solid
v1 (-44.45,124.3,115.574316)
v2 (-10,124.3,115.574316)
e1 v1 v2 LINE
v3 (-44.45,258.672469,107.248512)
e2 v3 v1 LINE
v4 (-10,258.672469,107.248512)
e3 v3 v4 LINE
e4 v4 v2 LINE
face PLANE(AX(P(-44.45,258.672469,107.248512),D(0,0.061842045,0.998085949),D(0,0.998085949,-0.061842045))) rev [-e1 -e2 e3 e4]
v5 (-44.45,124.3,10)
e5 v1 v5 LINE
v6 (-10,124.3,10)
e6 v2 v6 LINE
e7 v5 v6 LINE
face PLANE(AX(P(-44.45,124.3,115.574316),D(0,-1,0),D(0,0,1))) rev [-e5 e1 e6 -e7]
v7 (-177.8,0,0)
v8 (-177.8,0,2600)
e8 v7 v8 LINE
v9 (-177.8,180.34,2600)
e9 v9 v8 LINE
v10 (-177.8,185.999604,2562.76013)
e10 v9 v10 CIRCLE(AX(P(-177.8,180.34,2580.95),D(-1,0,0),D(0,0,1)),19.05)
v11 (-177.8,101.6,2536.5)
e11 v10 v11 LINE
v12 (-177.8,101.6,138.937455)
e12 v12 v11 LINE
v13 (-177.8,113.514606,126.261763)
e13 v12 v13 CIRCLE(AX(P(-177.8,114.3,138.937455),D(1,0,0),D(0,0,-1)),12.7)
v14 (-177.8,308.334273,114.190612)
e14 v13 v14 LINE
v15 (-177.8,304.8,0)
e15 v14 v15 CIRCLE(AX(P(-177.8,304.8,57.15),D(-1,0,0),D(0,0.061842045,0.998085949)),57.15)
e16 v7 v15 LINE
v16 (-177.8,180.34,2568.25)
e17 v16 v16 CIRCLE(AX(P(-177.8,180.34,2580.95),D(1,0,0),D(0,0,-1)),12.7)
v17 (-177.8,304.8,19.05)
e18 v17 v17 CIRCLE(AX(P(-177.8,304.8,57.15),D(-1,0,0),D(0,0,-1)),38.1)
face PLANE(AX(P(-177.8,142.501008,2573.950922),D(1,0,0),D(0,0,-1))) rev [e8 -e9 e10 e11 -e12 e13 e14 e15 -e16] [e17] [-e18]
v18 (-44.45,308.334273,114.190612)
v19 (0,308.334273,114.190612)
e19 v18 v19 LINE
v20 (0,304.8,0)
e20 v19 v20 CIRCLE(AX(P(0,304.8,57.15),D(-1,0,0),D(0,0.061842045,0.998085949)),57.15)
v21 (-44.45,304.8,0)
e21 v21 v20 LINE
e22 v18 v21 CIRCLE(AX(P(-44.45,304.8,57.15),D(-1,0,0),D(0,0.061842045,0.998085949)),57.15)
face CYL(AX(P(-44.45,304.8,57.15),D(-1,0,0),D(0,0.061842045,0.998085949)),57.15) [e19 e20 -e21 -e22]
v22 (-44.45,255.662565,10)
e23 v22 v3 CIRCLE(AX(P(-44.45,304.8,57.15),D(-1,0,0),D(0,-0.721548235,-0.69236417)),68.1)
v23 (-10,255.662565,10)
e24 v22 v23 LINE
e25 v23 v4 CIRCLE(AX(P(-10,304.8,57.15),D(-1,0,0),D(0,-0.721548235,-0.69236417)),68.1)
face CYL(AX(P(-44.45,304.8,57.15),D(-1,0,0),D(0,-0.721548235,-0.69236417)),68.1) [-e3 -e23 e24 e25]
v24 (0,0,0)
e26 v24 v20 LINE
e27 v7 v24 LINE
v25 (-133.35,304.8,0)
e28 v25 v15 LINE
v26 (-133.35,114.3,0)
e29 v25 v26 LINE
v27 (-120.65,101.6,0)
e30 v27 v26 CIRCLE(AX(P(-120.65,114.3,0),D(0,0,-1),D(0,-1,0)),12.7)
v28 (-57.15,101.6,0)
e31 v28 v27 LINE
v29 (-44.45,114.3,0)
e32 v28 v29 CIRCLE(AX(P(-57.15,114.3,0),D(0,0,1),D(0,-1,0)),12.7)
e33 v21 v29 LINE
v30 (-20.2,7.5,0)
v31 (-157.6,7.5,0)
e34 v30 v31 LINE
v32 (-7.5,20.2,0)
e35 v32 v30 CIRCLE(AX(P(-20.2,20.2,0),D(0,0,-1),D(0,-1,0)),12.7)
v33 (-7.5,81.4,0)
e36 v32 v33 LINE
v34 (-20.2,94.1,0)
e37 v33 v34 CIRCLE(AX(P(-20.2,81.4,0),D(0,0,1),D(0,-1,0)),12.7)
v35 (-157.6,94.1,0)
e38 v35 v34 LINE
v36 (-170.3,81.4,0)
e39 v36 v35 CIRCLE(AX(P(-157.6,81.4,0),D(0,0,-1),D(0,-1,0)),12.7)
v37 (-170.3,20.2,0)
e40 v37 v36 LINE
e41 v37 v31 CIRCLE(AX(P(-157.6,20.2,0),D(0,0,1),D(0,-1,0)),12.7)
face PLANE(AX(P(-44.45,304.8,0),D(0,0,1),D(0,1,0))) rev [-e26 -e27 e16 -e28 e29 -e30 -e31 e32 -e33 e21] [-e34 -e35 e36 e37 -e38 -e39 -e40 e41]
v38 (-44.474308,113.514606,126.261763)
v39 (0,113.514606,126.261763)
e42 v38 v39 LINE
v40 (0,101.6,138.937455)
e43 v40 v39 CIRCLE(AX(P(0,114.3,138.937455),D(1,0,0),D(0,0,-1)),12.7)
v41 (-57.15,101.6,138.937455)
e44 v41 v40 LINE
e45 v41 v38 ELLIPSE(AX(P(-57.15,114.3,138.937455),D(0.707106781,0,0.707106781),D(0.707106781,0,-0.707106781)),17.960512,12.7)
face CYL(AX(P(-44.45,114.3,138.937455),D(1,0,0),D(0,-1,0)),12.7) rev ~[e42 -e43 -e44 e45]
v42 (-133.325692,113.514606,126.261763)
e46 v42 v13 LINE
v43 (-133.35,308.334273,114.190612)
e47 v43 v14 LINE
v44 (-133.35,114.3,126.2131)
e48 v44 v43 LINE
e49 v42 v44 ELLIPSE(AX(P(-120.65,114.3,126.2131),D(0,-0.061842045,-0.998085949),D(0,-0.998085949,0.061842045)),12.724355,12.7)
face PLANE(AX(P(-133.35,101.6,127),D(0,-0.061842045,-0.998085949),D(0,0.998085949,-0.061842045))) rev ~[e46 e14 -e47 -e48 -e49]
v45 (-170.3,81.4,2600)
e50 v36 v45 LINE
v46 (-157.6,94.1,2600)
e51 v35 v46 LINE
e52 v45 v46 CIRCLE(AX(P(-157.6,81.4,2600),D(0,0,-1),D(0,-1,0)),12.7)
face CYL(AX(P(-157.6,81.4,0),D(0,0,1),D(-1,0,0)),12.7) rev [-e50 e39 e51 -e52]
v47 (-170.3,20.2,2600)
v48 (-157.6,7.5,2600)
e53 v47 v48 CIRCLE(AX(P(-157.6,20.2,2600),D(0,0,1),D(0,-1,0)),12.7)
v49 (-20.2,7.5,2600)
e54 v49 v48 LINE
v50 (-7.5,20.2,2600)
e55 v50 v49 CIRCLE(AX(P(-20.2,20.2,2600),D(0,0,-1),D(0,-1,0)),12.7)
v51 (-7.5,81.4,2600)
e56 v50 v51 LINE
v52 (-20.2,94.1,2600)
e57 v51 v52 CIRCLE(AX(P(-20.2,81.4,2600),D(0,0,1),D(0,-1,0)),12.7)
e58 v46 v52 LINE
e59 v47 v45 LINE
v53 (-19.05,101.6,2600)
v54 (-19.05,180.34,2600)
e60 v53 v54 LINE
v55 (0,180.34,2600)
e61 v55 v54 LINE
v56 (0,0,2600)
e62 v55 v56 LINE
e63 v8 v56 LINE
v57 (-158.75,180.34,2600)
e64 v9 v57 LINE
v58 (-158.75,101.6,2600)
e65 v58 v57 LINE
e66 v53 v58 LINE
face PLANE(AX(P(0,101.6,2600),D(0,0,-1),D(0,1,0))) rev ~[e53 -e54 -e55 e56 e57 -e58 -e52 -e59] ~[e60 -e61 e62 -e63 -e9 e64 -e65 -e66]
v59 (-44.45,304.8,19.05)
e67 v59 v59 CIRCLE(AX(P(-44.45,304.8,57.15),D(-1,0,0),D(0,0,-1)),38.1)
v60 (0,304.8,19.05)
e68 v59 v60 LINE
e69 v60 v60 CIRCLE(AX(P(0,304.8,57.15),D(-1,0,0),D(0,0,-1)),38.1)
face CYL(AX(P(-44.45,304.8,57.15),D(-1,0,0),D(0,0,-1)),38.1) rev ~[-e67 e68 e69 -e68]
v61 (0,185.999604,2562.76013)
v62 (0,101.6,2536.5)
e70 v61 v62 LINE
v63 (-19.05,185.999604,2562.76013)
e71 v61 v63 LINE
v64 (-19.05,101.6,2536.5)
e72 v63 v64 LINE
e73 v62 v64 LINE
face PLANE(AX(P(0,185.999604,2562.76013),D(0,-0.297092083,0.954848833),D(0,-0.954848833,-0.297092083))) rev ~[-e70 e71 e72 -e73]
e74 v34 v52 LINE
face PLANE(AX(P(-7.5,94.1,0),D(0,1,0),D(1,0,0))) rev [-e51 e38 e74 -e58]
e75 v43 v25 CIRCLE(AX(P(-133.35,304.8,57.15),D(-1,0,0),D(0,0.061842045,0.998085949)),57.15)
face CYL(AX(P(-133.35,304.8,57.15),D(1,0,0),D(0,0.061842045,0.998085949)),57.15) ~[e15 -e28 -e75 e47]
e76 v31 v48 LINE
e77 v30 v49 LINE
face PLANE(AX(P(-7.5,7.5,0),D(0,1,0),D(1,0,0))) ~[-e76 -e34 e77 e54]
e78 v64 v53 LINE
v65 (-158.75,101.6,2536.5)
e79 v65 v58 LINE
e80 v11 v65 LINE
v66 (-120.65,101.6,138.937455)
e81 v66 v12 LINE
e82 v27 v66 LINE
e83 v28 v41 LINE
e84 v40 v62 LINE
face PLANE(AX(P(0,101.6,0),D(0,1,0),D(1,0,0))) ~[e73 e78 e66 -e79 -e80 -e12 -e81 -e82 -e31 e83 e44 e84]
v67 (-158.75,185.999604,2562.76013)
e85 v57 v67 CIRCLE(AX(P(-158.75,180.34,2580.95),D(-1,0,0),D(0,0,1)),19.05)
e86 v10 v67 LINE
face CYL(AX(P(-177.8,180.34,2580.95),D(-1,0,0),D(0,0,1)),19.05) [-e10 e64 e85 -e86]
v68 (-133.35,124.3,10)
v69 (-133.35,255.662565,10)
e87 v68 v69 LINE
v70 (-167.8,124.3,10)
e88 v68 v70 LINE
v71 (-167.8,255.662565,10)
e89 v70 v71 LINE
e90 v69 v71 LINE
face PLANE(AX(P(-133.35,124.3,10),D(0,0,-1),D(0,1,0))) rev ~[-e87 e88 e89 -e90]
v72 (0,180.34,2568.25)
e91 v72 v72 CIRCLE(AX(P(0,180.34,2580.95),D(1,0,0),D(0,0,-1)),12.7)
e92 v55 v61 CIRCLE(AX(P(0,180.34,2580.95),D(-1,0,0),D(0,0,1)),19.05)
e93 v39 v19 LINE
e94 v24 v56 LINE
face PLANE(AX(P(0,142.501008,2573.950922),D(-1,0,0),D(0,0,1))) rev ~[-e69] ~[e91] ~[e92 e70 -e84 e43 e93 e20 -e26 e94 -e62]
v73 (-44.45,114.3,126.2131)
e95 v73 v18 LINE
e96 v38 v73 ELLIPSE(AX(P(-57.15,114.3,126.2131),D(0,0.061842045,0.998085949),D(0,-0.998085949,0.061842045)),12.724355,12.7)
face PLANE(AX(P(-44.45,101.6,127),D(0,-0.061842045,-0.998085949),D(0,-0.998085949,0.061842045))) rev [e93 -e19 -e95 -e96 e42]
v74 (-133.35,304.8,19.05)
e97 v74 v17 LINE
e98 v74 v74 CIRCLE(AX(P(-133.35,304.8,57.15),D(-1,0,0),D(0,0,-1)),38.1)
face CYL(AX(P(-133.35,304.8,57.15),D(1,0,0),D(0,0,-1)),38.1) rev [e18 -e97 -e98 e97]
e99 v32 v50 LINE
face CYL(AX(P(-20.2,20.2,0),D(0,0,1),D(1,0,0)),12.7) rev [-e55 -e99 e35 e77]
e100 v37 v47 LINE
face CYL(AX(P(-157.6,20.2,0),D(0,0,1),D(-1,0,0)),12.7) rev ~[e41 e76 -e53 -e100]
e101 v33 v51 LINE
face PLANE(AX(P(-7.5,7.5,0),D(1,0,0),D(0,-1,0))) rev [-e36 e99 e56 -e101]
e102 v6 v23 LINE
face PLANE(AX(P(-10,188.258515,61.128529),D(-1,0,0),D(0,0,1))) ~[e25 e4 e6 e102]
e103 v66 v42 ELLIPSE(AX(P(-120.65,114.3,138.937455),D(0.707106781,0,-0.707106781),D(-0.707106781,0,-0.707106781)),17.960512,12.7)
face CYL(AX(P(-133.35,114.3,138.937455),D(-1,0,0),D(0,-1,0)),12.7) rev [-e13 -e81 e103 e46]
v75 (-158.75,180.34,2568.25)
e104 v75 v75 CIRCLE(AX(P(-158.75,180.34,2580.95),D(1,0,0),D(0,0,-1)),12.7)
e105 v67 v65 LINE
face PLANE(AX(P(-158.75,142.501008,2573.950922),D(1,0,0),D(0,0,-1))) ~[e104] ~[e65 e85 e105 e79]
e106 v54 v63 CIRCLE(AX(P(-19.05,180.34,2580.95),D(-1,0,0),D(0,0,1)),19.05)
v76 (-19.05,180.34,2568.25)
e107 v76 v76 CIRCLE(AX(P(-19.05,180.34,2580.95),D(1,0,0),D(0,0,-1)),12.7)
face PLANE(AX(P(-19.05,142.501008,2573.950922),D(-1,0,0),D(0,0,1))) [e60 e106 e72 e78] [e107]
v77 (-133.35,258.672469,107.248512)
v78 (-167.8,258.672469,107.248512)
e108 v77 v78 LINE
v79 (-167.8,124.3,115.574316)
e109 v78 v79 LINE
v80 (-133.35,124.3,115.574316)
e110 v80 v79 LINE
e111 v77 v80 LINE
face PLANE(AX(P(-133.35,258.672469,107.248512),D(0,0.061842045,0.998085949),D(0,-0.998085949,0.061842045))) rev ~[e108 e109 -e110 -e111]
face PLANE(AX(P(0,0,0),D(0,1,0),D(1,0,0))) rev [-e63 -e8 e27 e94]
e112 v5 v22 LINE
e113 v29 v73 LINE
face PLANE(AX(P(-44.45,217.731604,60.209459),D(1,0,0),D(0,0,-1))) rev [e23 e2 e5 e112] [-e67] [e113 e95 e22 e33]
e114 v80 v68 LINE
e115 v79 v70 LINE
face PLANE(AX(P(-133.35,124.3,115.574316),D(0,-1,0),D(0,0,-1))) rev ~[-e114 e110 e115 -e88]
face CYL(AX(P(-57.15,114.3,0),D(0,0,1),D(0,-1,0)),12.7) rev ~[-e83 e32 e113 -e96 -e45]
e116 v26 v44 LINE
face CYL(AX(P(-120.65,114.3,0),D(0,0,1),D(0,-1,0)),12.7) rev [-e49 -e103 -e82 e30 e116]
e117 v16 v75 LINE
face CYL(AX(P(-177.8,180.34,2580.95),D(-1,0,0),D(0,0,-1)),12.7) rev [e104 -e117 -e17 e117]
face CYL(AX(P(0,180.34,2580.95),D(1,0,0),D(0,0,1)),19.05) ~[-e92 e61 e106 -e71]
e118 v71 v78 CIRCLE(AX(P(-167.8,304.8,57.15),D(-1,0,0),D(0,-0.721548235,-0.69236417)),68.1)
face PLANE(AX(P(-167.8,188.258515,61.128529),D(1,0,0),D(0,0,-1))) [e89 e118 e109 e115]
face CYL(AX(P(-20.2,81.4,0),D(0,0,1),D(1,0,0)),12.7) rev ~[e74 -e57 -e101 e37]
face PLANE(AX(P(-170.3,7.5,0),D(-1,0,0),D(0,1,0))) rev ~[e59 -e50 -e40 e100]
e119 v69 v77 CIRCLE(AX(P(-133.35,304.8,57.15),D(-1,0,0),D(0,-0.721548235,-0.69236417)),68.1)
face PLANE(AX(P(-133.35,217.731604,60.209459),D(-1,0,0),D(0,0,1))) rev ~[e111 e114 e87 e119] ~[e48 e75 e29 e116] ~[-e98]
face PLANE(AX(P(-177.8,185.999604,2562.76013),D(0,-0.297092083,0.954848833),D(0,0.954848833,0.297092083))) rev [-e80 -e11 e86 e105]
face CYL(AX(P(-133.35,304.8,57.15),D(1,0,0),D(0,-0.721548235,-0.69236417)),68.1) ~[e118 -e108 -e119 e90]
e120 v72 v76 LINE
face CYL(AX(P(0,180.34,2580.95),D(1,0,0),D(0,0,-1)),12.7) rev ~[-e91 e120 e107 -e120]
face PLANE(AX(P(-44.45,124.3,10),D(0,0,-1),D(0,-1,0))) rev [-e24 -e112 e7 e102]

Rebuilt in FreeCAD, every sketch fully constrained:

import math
import FreeCAD as App
import Part
import Sketcher
Q = App.Units.Quantity


def edges_at(feature, points):
    """Names of the edges that pass closest to the given points."""
    edges = feature.Shape.Edges
    near = lambda p: min(range(len(edges)), key=lambda i: edges[i].distToShape(Part.Vertex(*p))[0])
    return sorted({f"Edge{near(p) + 1}" for p in points})


def add_polygon(sketch, points):
    """Adds a closed chain of lines whose ends are joined by coincident constraints."""
    first, n = sketch.GeometryCount, len(points)
    for a, b in zip(points, points[1:] + points[:1]):
        sketch.addGeometry(Part.LineSegment(App.Vector(*a, 0), App.Vector(*b, 0)), False)
    for i in range(n):
        sketch.addConstraint(Sketcher.Constraint("Coincident", first + i, 2, first + (i + 1) % n, 1))

doc = App.newDocument("Part")
body = doc.addObject("PartDesign::Body", "Body")

# Sketch on XY plane
sketch1 = body.newObject("Sketcher::SketchObject", "Sketch")
sketch1.AttachmentSupport = (doc.getObject("XY_Plane"), [""])
sketch1.MapMode = "FlatFace"
add_polygon(sketch1, [(-178, 102), (-178, 0), (0, 0), (0, 102)])  # lines 0-3
add_polygon(sketch1, [(-8, 8), (-170, 8), (-170, 94), (-8, 94)])  # lines 4-7
sketch1.addConstraint([
    Sketcher.Constraint("Vertical", 0),
    Sketcher.Constraint("Horizontal", 1),
    Sketcher.Constraint("Vertical", 2),
    Sketcher.Constraint("Horizontal", 3),
    Sketcher.Constraint("Horizontal", 4),
    Sketcher.Constraint("Vertical", 5),
    Sketcher.Constraint("Horizontal", 6),
    Sketcher.Constraint("Vertical", 7),
    Sketcher.Constraint("Coincident", 1, 2, -1, 1),
    Sketcher.Constraint("DistanceX", 1, 1, 1, 2, Q("7 in")),
    Sketcher.Constraint("DistanceY", 0, 2, 0, 1, Q("4 in")),
    Sketcher.Constraint("DistanceX", 4, 2, 4, 1, Q("162.8 mm")),
    Sketcher.Constraint("DistanceY", 5, 1, 5, 2, Q("86.6 mm")),
    Sketcher.Constraint("DistanceX", 4, 2, -1, 1, Q("170.3 mm")),
    Sketcher.Constraint("DistanceY", -1, 1, 4, 2, Q("7.5 mm")),
])
pad1 = body.newObject("PartDesign::Pad", "Pad")
pad1.Profile = sketch1
pad1.Length = 2600

# Sketch on YZ plane
sketch2 = body.newObject("Sketcher::SketchObject", "Sketch001")
sketch2.AttachmentSupport = (doc.getObject("YZ_Plane"), [""])
sketch2.MapMode = "FlatFace"
sketch2.addGeometry([
    Part.LineSegment(App.Vector(102, 127, 0), App.Vector(102, 0, 0)),  # 0
    Part.LineSegment(App.Vector(102, 0, 0), App.Vector(305, 0, 0)),  # 1
    Part.ArcOfCircle(Part.Circle(App.Vector(305, 57, 0), App.Vector(0, 0, 1), 57), math.radians(-90), math.radians(86)),  # 2
    Part.LineSegment(App.Vector(308, 114, 0), App.Vector(102, 127, 0)),  # 3
    Part.Circle(App.Vector(305, 57, 0), App.Vector(0, 0, 1), 38),  # 4
], False)
sketch2.addConstraint([
    Sketcher.Constraint("Coincident", 0, 2, 1, 1),
    Sketcher.Constraint("Tangent", 1, 2, 2, 1),
    Sketcher.Constraint("Tangent", 2, 2, 3, 1),
    Sketcher.Constraint("Coincident", 3, 2, 0, 1),
    Sketcher.Constraint("Vertical", 0),
    Sketcher.Constraint("Horizontal", 1),
    Sketcher.Constraint("Coincident", 4, 3, 2, 3),
    Sketcher.Constraint("PointOnObject", 0, 2, -1),
    Sketcher.Constraint("Diameter", 4, Q("3 in")),
    Sketcher.Constraint("DistanceX", 1, 1, 1, 2, Q("8 in")),
    Sketcher.Constraint("DistanceY", 0, 2, 0, 1, Q("5 in")),
    Sketcher.Constraint("Radius", 2, Q("2.25 in")),
    Sketcher.Constraint("DistanceX", -1, 1, 2, 3, Q("12 in")),
])
pad2 = body.newObject("PartDesign::Pad", "Pad001")
pad2.Profile = sketch2
pad2.Length = Q("1.75 in")
pad2.Reversed = True

# Sketch on YZ plane
sketch3 = body.newObject("Sketcher::SketchObject", "Sketch002")
sketch3.AttachmentSupport = (doc.getObject("YZ_Plane"), [""])
sketch3.MapMode = "FlatFace"
sketch3.AttachmentOffset = App.Placement(App.Vector(0, 0, -5.25 * 25.4), App.Rotation())
sketch3.addGeometry([
    Part.LineSegment(App.Vector(305, 0, 0), App.Vector(102, 0, 0)),  # 0
    Part.LineSegment(App.Vector(102, 0, 0), App.Vector(102, 127, 0)),  # 1
    Part.LineSegment(App.Vector(102, 127, 0), App.Vector(308, 114, 0)),  # 2
    Part.ArcOfCircle(Part.Circle(App.Vector(305, 57, 0), App.Vector(0, 0, 1), 57), math.radians(-90), math.radians(86)),  # 3
    Part.Circle(App.Vector(305, 57, 0), App.Vector(0, 0, 1), 38),  # 4
], False)
sketch3.addConstraint([
    Sketcher.Constraint("Coincident", 0, 2, 1, 1),
    Sketcher.Constraint("Coincident", 1, 2, 2, 1),
    Sketcher.Constraint("Tangent", 2, 2, 3, 2),
    Sketcher.Constraint("Tangent", 3, 1, 0, 1),
    Sketcher.Constraint("Horizontal", 0),
    Sketcher.Constraint("Vertical", 1),
    Sketcher.Constraint("Coincident", 4, 3, 3, 3),
    Sketcher.Constraint("PointOnObject", 0, 2, -1),
    Sketcher.Constraint("Diameter", 4, Q("3 in")),
    Sketcher.Constraint("DistanceX", 0, 2, 0, 1, Q("8 in")),
    Sketcher.Constraint("DistanceY", 1, 1, 1, 2, Q("5 in")),
    Sketcher.Constraint("Radius", 3, Q("2.25 in")),
    Sketcher.Constraint("DistanceX", -1, 1, 3, 3, Q("12 in")),
])
pad3 = body.newObject("PartDesign::Pad", "Pad002")
pad3.Profile = sketch3
pad3.Length = Q("1.75 in")
pad3.Reversed = True
doc.recompute()

fillet = body.newObject("PartDesign::Fillet", "Fillet")
fillet.Base = (pad3, edges_at(pad3, [
    (-7.5, 94.1, 1300),
    (-170.3, 94.1, 1300),
    (-170.3, 7.5, 1300),
    (-7.5, 7.5, 1300),
]))
fillet.Radius = Q("0.5 in")
doc.recompute()

fillet2 = body.newObject("PartDesign::Fillet", "Fillet001")
fillet2.Base = (fillet, edges_at(fillet, [
    (-44.45, 101.6, 63.5),
    (-22.225, 101.6, 127),
    (-133.35, 101.6, 63.5),
    (-155.575, 101.6, 127),
]))
fillet2.Radius = Q("0.5 in")

# Sketch on YZ plane
sketch4 = body.newObject("Sketcher::SketchObject", "Sketch003")
sketch4.AttachmentSupport = (doc.getObject("YZ_Plane"), [""])
sketch4.MapMode = "FlatFace"
sketch4.addGeometry([
    Part.LineSegment(App.Vector(180, 2600, 0), App.Vector(102, 2600, 0)),  # 0
    Part.LineSegment(App.Vector(102, 2600, 0), App.Vector(102, 2536, 0)),  # 1
    Part.LineSegment(App.Vector(102, 2536, 0), App.Vector(186, 2563, 0)),  # 2
    Part.ArcOfCircle(Part.Circle(App.Vector(180, 2581, 0), App.Vector(0, 0, 1), 19), math.radians(-73), math.radians(90)),  # 3
    Part.Circle(App.Vector(180, 2581, 0), App.Vector(0, 0, 1), 13),  # 4
], False)
sketch4.addConstraint([
    Sketcher.Constraint("Coincident", 0, 2, 1, 1),
    Sketcher.Constraint("Coincident", 1, 2, 2, 1),
    Sketcher.Constraint("Tangent", 2, 2, 3, 1),
    Sketcher.Constraint("Tangent", 3, 2, 0, 1),
    Sketcher.Constraint("Horizontal", 0),
    Sketcher.Constraint("Vertical", 1),
    Sketcher.Constraint("Coincident", 4, 3, 3, 3),
    Sketcher.Constraint("Diameter", 4, Q("1 in")),
    Sketcher.Constraint("Radius", 3, Q("0.75 in")),
    Sketcher.Constraint("DistanceX", 0, 2, 0, 1, Q("3.1 in")),
    Sketcher.Constraint("DistanceY", 1, 2, 1, 1, Q("2.5 in")),
    Sketcher.Constraint("DistanceX", -1, 1, 0, 2, Q("4 in")),
    Sketcher.Constraint("DistanceY", -1, 1, 3, 3, Q("2580.95 mm")),
])
pad4 = body.newObject("PartDesign::Pad", "Pad003")
pad4.Profile = sketch4
pad4.Length = Q("0.75 in")
pad4.Reversed = True
doc.recompute()

datumplane = body.newObject("PartDesign::Plane", "DatumPlane")
datumplane.AttachmentSupport = (doc.getObject("YZ_Plane"), [""])
datumplane.MapMode = "FlatFace"
datumplane.AttachmentOffset = App.Placement(App.Vector(0, 0, -3.5 * 25.4), App.Rotation())
mirrored = body.newObject("PartDesign::Mirrored", "Mirrored")
mirrored.Originals = [pad4]
mirrored.MirrorPlane = (datumplane, [""])
body.Tip = mirrored

# Sketch on YZ plane
sketch5 = body.newObject("Sketcher::SketchObject", "Sketch004")
sketch5.AttachmentSupport = (doc.getObject("YZ_Plane"), [""])
sketch5.MapMode = "FlatFace"
sketch5.AttachmentOffset = App.Placement(App.Vector(0, 0, -5.25 * 25.4), App.Rotation())
sketch5.addGeometry([
    Part.ArcOfCircle(Part.Circle(App.Vector(304.8, 57.15, 0), App.Vector(0, 0, 1), 68.1), math.radians(132.636903), math.radians(223.817546)),
    Part.LineSegment(App.Vector(258.672469, 107.248512, 0), App.Vector(124.3, 115.574316, 0)),
    Part.LineSegment(App.Vector(124.3, 115.574316, 0), App.Vector(124.3, 10, 0)),
    Part.LineSegment(App.Vector(124.3, 10, 0), App.Vector(255.662565, 10, 0)),
], False)
sketch5.addConstraint([
    Sketcher.Constraint("Coincident", 0, 1, 1, 1),
    Sketcher.Constraint("Coincident", 1, 2, 2, 1),
    Sketcher.Constraint("Coincident", 2, 2, 3, 1),
    Sketcher.Constraint("Coincident", 3, 2, 0, 2),
    Sketcher.Constraint("Vertical", 2),
    Sketcher.Constraint("Horizontal", 3),
    Sketcher.Constraint("DistanceX", -1, 1, 0, 3, Q("12 in")),
    Sketcher.Constraint("DistanceY", -1, 1, 0, 3, Q("2.25 in")),
    Sketcher.Constraint("Radius", 0, Q("68.1 mm")),
    Sketcher.Constraint("Distance", 1, Q("5.3003999 in")),
    Sketcher.Constraint("DistanceX", 3, 2, 0, 1, Q("0.1185002 in")),
    Sketcher.Constraint("DistanceX", -1, 1, 1, 2, Q("124.3 mm")),
    Sketcher.Constraint("DistanceY", -1, 1, 2, 2, Q("10 mm")),
])
pocket1 = body.newObject("PartDesign::Pocket", "Pocket")
pocket1.Profile = sketch5
pocket1.Length = 34.45

# Sketch on XZ plane
sketch6 = body.newObject("Sketcher::SketchObject", "Sketch005")
sketch6.AttachmentSupport = (doc.getObject("XZ_Plane"), [""])
sketch6.MapMode = "FlatFace"
sketch6.AttachmentOffset = App.Placement(App.Vector(0, 0, -4 * 25.4), App.Rotation())
add_polygon(sketch6, [(-89, 0), (-89, 2600), (0, 2600), (0, 0)])  # lines 0-3
sketch6.addConstraint([
    Sketcher.Constraint("Vertical", 0),
    Sketcher.Constraint("Horizontal", 1),
    Sketcher.Constraint("Vertical", 2),
    Sketcher.Constraint("Horizontal", 3),
    Sketcher.Constraint("Coincident", 2, 2, -1, 1),
    Sketcher.Constraint("DistanceX", 1, 1, 1, 2, Q("3.5 in")),
    Sketcher.Constraint("DistanceY", 0, 1, 0, 2, Q("2600 mm")),
])
pocket2 = body.newObject("PartDesign::Pocket", "Pocket001")
pocket2.Profile = sketch6
pocket2.Type = "ThroughAll"
pocket2.Midplane = True
body2 = doc.addObject("PartDesign::Body", "Body001")
doc.recompute()

body2.BaseFeature = body
doc.recompute()

mirroring = doc.addObject("Part::Mirroring", "Mirroring")
mirroring.Source = body
mirroring.Base = App.Vector(-88.9, 0, 0)
mirroring.Normal = App.Vector(-1, 0, 0)
body3 = doc.addObject("PartDesign::Body", "Body002")
body3.BaseFeature = mirroring
boolean = body2.newObject("PartDesign::Boolean", "Boolean")
boolean.Type = "Fuse"
boolean.addObjects([body3])
doc.recompute()
mirroring.Visibility = False

doc.recompute()
